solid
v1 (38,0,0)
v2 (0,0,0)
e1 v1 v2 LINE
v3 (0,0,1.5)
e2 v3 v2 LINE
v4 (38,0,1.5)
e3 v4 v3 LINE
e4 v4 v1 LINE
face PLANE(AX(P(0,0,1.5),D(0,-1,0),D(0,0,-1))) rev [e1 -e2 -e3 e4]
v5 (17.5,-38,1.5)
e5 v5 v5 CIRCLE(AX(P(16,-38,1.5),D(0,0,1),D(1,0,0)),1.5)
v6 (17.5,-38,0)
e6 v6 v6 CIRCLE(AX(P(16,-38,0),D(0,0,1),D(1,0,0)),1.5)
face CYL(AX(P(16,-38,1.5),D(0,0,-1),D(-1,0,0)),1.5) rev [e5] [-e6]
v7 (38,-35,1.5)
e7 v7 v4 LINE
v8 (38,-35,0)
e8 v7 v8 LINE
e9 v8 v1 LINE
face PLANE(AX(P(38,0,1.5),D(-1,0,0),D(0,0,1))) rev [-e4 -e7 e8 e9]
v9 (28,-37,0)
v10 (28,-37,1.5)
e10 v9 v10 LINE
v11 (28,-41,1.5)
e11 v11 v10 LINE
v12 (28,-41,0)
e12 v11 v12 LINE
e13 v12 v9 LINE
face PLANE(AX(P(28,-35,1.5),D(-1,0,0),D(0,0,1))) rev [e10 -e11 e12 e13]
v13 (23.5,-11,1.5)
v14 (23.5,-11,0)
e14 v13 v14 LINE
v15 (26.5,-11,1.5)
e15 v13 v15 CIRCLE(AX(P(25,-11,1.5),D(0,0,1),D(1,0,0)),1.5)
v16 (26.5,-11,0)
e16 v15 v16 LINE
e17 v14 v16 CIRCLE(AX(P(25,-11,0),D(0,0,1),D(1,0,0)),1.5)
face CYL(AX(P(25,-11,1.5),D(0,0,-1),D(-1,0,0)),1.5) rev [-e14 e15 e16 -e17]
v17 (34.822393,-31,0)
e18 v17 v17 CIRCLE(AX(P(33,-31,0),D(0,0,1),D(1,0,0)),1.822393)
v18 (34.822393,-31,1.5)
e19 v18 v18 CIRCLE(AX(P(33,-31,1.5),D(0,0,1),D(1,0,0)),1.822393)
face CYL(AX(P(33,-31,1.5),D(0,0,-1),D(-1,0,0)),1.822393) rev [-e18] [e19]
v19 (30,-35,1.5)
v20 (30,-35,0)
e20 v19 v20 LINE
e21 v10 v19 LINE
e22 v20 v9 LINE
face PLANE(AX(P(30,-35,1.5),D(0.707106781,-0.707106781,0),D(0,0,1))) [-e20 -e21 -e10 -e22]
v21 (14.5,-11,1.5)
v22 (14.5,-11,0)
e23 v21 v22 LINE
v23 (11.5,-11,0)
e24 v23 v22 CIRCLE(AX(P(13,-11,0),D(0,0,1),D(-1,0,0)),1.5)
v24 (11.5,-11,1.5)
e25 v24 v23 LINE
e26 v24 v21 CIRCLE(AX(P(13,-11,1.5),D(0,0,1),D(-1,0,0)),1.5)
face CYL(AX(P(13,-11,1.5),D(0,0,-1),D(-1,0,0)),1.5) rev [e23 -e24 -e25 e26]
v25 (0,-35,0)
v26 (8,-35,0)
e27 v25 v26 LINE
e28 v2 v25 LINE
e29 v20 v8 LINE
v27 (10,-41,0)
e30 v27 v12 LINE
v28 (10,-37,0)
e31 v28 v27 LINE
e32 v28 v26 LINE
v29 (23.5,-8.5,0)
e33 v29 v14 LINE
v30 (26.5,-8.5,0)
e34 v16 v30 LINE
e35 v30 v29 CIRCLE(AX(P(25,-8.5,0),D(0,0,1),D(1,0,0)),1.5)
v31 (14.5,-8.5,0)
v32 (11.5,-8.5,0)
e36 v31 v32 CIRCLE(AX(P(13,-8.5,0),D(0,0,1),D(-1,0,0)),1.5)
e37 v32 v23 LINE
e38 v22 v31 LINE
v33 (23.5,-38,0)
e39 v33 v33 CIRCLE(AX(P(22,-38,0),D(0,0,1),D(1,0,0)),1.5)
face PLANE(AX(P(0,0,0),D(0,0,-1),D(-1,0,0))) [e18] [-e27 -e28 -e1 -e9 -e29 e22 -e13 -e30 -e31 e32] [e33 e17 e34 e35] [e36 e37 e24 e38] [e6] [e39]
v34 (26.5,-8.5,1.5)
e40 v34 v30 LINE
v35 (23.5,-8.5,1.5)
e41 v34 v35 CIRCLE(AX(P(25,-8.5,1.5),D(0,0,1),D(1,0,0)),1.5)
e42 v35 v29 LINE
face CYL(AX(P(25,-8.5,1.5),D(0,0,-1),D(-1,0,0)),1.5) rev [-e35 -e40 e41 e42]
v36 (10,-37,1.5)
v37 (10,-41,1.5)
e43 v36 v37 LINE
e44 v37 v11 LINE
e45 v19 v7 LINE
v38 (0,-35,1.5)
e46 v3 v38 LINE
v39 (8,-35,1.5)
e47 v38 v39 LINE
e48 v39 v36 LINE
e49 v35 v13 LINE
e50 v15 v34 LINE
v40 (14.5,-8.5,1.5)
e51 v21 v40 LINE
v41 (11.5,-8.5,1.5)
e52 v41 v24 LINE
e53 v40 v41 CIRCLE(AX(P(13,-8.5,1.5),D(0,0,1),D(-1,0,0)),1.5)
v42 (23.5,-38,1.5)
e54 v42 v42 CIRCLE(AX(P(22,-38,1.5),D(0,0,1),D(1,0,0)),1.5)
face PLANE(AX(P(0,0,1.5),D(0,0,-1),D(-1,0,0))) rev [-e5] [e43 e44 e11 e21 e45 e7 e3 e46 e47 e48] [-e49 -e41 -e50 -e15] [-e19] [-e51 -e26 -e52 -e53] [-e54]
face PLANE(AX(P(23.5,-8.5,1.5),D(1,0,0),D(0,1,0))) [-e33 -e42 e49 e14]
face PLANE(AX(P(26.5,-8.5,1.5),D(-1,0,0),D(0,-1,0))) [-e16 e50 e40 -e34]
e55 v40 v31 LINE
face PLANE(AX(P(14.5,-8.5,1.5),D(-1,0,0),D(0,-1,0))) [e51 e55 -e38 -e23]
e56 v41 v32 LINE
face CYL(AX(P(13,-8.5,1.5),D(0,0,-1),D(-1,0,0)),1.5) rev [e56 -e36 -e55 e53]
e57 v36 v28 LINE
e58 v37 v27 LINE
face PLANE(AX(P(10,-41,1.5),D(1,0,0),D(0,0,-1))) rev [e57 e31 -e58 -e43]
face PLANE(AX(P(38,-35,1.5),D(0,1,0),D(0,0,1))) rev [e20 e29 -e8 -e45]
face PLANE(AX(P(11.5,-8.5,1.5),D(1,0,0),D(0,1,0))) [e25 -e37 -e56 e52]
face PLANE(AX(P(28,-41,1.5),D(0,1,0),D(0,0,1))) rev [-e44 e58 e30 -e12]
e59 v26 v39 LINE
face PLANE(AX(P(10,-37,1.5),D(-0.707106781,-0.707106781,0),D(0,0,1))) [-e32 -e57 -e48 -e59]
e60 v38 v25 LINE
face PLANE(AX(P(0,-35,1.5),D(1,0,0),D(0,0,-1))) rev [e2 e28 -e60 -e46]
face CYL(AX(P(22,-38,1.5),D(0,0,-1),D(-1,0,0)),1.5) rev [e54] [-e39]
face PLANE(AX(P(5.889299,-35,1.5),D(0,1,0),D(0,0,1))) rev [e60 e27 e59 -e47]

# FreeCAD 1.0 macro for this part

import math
import FreeCAD as App
import Part
import Sketcher
from FreeCAD import Vector
Q = App.Units.Quantity


def edges_at(feature, points):
    """Names of the edges that pass closest to the given points."""
    edges = feature.Shape.Edges
    near = lambda p: min(range(len(edges)), key=lambda i: edges[i].distToShape(Part.Vertex(*p))[0])
    return sorted({f"Edge{near(p) + 1}" for p in points})

doc = App.newDocument("Part")
body = doc.addObject("PartDesign::Body", "Body")

# Sketch on XY plane
sketch1 = body.newObject("Sketcher::SketchObject", "Sketch")
sketch1.AttachmentSupport = (doc.getObject("XY_Plane"), [""])
sketch1.MapMode = "FlatFace"
sketch1.addGeometry([
    Part.LineSegment(Vector(38, 0, 0), Vector(0, 0, 0)),  # 0
    Part.LineSegment(Vector(0, 0, 0), Vector(0, -35, 0)),  # 1
    Part.LineSegment(Vector(0, -35, 0), Vector(10, -35, 0)),  # 2
    Part.LineSegment(Vector(10, -35, 0), Vector(10, -41, 0)),  # 3
    Part.LineSegment(Vector(10, -41, 0), Vector(28, -41, 0)),  # 4
    Part.LineSegment(Vector(28, -41, 0), Vector(28, -35, 0)),  # 5
    Part.LineSegment(Vector(28, -35, 0), Vector(38, -35, 0)),  # 6
    Part.LineSegment(Vector(38, -35, 0), Vector(38, 0, 0)),  # 7
    Part.Circle(Vector(33, -31, 0), Vector(0, 0, 1), 1.8),  # 8
    Part.Circle(Vector(22, -38, 0), Vector(0, 0, 1), 1.5),  # 9
    Part.Circle(Vector(16, -38, 0), Vector(0, 0, 1), 1.5),  # 10
    Part.LineSegment(Vector(26.5, -8.5, 0), Vector(26.5, -11, 0)),  # 11
    Part.ArcOfCircle(Part.Circle(Vector(25, -11, 0), Vector(0, 0, 1), 1.5), math.radians(180), math.radians(360)),  # 12
    Part.LineSegment(Vector(23.5, -11, 0), Vector(23.5, -8.5, 0)),  # 13
    Part.ArcOfCircle(Part.Circle(Vector(25, -8.5, 0), Vector(0, 0, 1), 1.5), math.radians(0), math.radians(180)),  # 14
    Part.ArcOfCircle(Part.Circle(Vector(13, -8.5, 0), Vector(0, 0, 1), 1.5), math.radians(0), math.radians(180)),  # 15
    Part.LineSegment(Vector(14.5, -8.5, 0), Vector(14.5, -11, 0)),  # 16
    Part.ArcOfCircle(Part.Circle(Vector(13, -11, 0), Vector(0, 0, 1), 1.5), math.radians(180), math.radians(360)),  # 17
    Part.LineSegment(Vector(11.5, -11, 0), Vector(11.5, -8.5, 0)),  # 18
], False)
sketch1.addConstraint([
    Sketcher.Constraint("Coincident", 0, 2, 1, 1),
    Sketcher.Constraint("Coincident", 1, 2, 2, 1),
    Sketcher.Constraint("Coincident", 2, 2, 3, 1),
    Sketcher.Constraint("Coincident", 3, 2, 4, 1),
    Sketcher.Constraint("Coincident", 4, 2, 5, 1),
    Sketcher.Constraint("Coincident", 5, 2, 6, 1),
    Sketcher.Constraint("Coincident", 6, 2, 7, 1),
    Sketcher.Constraint("Coincident", 7, 2, 0, 1),
    Sketcher.Constraint("Tangent", 11, 2, 12, 2),
    Sketcher.Constraint("Tangent", 12, 1, 13, 1),
    Sketcher.Constraint("Tangent", 13, 2, 14, 2),
    Sketcher.Constraint("Tangent", 14, 1, 11, 1),
    Sketcher.Constraint("Tangent", 15, 1, 16, 1),
    Sketcher.Constraint("Tangent", 16, 2, 17, 2),
    Sketcher.Constraint("Tangent", 17, 1, 18, 1),
    Sketcher.Constraint("Tangent", 18, 2, 15, 2),
    Sketcher.Constraint("Horizontal", 0),
    Sketcher.Constraint("Vertical", 1),
    Sketcher.Constraint("Horizontal", 2),
    Sketcher.Constraint("Vertical", 3),
    Sketcher.Constraint("Horizontal", 4),
    Sketcher.Constraint("Vertical", 5),
    Sketcher.Constraint("Horizontal", 6),
    Sketcher.Constraint("Vertical", 7),
    Sketcher.Constraint("Vertical", 11),
    Sketcher.Constraint("Vertical", 13),
    Sketcher.Constraint("Vertical", 16),
    Sketcher.Constraint("Vertical", 18),
    Sketcher.Constraint("Coincident", 0, 2, -1, 1),
    Sketcher.Constraint("Equal", 9, 10),
    Sketcher.Constraint("Equal", 10, 12),
    Sketcher.Constraint("Equal", 14, 15),
    Sketcher.Constraint("Horizontal", 9, 3, 10, 3),
    Sketcher.Constraint("Horizontal", 14, 3, 15, 3),
    Sketcher.Constraint("Horizontal", 12, 3, 17, 3),
    Sketcher.Constraint("Horizontal", 2, 2, 5, 2),
    Sketcher.Constraint("Equal", 2, 6),
    Sketcher.Constraint("Diameter", 9, Q("3 mm")),
    Sketcher.Constraint("DistanceX", 0, 2, 0, 1, Q("38 mm")),
    Sketcher.Constraint("DistanceX", 2, 1, 2, 2, Q("10 mm")),
    Sketcher.Constraint("DistanceY", 1, 2, 1, 1, Q("35 mm")),
    Sketcher.Constraint("DistanceY", 3, 2, 3, 1, Q("6 mm")),
    Sketcher.Constraint("DistanceY", 11, 2, 11, 1, Q("2.5 mm")),
    Sketcher.Constraint("DistanceX", -1, 1, 8, 3, Q("33 mm")),
    Sketcher.Constraint("DistanceY", 8, 3, -1, 1, Q("31 mm")),
    Sketcher.Constraint("DistanceX", -1, 1, 9, 3, Q("22 mm")),
    Sketcher.Constraint("DistanceY", 9, 3, -1, 1, Q("38 mm")),
    Sketcher.Constraint("DistanceX", -1, 1, 10, 3, Q("16 mm")),
    Sketcher.Constraint("DistanceX", -1, 1, 12, 3, Q("25 mm")),
    Sketcher.Constraint("DistanceY", 12, 3, -1, 1, Q("11 mm")),
    Sketcher.Constraint("DistanceX", -1, 1, 15, 3, Q("13 mm")),
    Sketcher.Constraint("Diameter", 8, Q("3.644786 mm")),
])
pad1 = body.newObject("PartDesign::Pad", "Pad")
pad1.Profile = sketch1
pad1.Length = 1.5
doc.recompute()

chamfer = body.newObject("PartDesign::Chamfer", "Chamfer")
chamfer.Base = (pad1, edges_at(pad1, [(28, -35, 0.75), (10, -35, 0.75)]))
chamfer.Size = 2

doc.recompute()
